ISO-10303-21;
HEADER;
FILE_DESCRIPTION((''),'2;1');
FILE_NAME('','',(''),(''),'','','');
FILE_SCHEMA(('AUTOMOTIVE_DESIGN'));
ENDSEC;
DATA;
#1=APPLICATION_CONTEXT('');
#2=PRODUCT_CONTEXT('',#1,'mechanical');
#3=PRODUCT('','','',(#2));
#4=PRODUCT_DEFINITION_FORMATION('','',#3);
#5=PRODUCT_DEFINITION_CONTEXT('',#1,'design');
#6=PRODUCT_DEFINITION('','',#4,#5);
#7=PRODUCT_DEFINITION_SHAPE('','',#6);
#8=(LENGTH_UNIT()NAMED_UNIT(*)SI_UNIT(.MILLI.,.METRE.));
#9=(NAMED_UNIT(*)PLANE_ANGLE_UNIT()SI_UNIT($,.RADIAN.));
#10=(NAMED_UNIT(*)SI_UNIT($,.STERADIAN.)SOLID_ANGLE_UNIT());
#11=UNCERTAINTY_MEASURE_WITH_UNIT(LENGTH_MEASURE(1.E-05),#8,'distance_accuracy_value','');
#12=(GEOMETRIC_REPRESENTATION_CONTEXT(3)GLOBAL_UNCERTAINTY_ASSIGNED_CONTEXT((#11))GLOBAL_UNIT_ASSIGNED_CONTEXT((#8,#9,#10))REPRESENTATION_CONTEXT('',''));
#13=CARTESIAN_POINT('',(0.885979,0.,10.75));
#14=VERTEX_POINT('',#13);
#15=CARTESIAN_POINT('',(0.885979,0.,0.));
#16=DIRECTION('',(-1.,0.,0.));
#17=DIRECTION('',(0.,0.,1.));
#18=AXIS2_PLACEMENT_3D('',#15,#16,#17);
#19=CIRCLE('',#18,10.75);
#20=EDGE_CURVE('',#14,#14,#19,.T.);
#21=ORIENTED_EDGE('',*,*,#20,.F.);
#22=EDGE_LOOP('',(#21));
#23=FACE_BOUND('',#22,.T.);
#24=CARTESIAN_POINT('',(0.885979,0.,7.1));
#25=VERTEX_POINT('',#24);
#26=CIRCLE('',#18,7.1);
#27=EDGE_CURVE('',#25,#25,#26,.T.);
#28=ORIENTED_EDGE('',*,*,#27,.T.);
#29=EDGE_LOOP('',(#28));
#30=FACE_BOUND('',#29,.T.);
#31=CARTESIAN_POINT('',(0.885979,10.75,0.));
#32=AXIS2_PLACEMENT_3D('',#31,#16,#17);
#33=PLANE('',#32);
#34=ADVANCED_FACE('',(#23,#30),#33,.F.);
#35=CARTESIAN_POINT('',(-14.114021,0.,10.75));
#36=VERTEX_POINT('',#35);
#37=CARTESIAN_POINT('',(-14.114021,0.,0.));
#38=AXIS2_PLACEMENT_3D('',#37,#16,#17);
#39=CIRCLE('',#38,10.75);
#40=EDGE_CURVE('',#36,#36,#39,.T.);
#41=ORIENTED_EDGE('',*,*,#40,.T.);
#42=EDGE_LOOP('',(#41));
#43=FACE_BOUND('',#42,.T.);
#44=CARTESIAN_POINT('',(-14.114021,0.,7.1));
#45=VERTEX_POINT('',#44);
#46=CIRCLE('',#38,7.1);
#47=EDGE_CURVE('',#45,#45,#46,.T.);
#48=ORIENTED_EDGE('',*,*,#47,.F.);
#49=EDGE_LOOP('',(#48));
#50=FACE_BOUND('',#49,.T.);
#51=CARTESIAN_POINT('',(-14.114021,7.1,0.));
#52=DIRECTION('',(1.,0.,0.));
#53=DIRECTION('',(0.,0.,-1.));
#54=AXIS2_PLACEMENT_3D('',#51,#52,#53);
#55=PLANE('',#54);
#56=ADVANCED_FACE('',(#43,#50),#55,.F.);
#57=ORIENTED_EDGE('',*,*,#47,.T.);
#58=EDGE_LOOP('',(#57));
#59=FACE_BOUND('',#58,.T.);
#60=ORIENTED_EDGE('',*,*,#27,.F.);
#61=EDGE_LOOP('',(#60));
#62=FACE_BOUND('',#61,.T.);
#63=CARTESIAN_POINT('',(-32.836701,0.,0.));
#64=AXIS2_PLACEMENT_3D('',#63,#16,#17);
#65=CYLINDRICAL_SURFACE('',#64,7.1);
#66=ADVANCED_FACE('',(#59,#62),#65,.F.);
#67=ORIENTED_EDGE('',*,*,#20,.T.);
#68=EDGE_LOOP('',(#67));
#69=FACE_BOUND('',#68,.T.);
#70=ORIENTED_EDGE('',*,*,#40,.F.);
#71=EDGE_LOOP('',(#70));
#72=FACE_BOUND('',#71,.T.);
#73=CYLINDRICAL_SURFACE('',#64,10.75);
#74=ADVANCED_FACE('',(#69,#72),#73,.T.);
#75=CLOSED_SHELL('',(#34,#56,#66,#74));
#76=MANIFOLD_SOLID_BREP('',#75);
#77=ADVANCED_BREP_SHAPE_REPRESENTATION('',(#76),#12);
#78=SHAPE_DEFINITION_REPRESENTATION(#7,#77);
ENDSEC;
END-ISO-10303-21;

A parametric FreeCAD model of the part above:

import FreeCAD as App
import Part
import Sketcher
from FreeCAD import Vector

doc = App.newDocument("Part")
body = doc.addObject("PartDesign::Body", "Body")

sketch1 = body.newObject("Sketcher::SketchObject", "Sketch")
sketch1.AttachmentSupport = (doc.getObject("XY_Plane"), [""])
sketch1.MapMode = "FlatFace"
sketch1.addGeometry(Part.LineSegment(Vector(-14.1, 10.8, 0), Vector(-14.1, 7.1, 0)), False)
sketch1.addGeometry(Part.LineSegment(Vector(-14.1, 7.1, 0), Vector(0.9, 7.1, 0)), False)
sketch1.addGeometry(Part.LineSegment(Vector(0.9, 7.1, 0), Vector(0.9, 10.8, 0)), False)
sketch1.addGeometry(Part.LineSegment(Vector(0.9, 10.8, 0), Vector(-14.1, 10.8, 0)), False)
sketch1.addConstraint(Sketcher.Constraint("Coincident", 0, 2, 1, 1))
sketch1.addConstraint(Sketcher.Constraint("Coincident", 1, 2, 2, 1))
sketch1.addConstraint(Sketcher.Constraint("Coincident", 2, 2, 3, 1))
sketch1.addConstraint(Sketcher.Constraint("Coincident", 3, 2, 0, 1))
sketch1.addConstraint(Sketcher.Constraint("Vertical", 0))
sketch1.addConstraint(Sketcher.Constraint("Horizontal", 1))
sketch1.addConstraint(Sketcher.Constraint("Vertical", 2))
sketch1.addConstraint(Sketcher.Constraint("Horizontal", 3))
sketch1.addConstraint(Sketcher.Constraint("DistanceX", 1, 1, 1, 2, 15.0))
sketch1.addConstraint(Sketcher.Constraint("DistanceY", 0, 2, 0, 1, 3.65))
sketch1.addConstraint(Sketcher.Constraint("DistanceY", -1, 1, 0, 2, 7.1))
sketch1.addConstraint(Sketcher.Constraint("DistanceX", 0, 2, -1, 1, 14.114021))
revolution = body.newObject("PartDesign::Revolution", "Revolution")
revolution.Profile = sketch1
revolution.ReferenceAxis = (sketch1, ["H_Axis"])
revolution.Angle = 360

doc.recompute()
